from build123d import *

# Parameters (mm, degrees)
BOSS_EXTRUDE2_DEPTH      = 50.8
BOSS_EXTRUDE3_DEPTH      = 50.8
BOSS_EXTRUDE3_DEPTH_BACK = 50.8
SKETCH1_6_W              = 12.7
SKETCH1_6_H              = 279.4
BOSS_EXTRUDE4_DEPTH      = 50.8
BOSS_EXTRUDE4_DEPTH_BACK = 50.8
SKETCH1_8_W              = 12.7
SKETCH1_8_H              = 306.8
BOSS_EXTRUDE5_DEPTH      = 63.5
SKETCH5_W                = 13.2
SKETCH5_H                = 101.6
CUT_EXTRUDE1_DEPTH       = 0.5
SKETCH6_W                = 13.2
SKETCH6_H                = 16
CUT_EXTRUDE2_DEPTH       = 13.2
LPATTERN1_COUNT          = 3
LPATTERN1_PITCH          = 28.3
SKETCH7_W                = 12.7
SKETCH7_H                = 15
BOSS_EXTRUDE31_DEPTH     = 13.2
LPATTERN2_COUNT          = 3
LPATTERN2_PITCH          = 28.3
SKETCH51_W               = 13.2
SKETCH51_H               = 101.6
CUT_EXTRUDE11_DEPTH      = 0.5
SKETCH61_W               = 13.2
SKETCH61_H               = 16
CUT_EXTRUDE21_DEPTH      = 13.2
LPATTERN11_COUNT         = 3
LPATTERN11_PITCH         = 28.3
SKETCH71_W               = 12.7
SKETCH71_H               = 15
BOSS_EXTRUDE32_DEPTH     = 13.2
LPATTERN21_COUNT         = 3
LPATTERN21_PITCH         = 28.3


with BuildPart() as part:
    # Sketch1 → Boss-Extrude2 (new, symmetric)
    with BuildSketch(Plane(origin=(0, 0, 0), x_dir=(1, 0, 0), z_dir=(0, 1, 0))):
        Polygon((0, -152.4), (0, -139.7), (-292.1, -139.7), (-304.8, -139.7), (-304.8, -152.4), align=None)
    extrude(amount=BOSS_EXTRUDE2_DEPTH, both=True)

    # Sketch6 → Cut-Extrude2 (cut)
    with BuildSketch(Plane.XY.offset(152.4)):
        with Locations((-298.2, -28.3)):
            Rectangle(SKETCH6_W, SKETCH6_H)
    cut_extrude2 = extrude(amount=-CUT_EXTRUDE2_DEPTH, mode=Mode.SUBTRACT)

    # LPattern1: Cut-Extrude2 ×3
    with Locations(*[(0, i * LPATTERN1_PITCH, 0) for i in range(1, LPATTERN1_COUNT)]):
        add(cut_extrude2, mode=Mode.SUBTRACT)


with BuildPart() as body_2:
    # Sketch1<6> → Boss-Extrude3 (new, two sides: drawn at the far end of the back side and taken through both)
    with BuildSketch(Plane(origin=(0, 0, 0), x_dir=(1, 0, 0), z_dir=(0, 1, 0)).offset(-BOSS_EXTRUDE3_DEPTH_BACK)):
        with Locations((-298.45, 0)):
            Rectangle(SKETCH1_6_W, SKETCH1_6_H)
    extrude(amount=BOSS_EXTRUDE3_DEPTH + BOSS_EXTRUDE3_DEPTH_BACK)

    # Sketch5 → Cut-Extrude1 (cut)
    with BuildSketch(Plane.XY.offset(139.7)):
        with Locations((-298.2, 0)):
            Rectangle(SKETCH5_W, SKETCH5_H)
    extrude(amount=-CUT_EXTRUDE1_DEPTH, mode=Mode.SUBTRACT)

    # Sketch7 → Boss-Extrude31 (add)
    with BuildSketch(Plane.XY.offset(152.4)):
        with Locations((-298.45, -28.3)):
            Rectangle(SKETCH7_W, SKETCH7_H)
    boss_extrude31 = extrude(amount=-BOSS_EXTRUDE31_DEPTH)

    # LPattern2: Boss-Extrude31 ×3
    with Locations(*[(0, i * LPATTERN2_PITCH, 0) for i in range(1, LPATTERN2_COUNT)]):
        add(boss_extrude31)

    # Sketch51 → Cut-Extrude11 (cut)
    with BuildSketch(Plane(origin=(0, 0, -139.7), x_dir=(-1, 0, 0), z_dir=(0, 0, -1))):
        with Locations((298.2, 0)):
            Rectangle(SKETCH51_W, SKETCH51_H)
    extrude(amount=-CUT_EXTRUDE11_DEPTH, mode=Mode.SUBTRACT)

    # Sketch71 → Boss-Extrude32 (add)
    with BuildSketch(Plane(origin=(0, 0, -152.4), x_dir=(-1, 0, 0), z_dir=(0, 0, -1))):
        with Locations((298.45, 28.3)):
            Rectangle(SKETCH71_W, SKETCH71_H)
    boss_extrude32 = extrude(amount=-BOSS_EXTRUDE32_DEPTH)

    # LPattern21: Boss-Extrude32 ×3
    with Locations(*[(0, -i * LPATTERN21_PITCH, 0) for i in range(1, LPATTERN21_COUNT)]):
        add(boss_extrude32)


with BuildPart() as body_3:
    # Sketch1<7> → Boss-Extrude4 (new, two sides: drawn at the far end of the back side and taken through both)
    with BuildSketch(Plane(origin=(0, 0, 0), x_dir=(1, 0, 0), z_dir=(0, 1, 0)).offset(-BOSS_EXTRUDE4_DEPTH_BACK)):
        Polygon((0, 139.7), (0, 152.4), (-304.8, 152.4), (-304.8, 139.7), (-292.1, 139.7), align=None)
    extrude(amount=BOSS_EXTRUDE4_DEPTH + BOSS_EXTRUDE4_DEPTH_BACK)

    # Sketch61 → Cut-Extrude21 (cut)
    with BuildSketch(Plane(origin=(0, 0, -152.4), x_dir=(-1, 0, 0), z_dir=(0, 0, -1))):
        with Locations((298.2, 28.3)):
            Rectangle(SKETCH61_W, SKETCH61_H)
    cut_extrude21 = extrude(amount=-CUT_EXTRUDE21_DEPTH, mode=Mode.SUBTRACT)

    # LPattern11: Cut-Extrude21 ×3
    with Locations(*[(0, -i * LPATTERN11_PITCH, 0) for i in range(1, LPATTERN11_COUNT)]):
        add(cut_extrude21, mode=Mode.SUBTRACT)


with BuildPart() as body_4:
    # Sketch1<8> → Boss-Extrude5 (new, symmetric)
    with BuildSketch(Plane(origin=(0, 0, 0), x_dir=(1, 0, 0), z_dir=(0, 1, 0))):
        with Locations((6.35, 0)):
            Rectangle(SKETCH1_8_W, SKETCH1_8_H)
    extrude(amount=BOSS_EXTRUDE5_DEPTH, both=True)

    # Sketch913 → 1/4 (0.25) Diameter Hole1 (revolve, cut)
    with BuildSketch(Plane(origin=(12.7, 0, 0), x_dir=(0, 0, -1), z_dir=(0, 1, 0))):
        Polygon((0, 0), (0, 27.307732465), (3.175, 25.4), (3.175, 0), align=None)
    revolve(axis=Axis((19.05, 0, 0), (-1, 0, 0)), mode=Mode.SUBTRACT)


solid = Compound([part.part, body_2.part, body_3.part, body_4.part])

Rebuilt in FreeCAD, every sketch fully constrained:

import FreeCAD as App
import Part
import Sketcher
Q = App.Units.Quantity


def add_polygon(sketch, points):
    """Adds a closed chain of lines whose ends are joined by coincident constraints."""
    first, n = sketch.GeometryCount, len(points)
    for a, b in zip(points, points[1:] + points[:1]):
        sketch.addGeometry(Part.LineSegment(App.Vector(*a, 0), App.Vector(*b, 0)), False)
    for i in range(n):
        sketch.addConstraint(Sketcher.Constraint("Coincident", first + i, 2, first + (i + 1) % n, 1))

doc = App.newDocument("Part")
body = doc.addObject("PartDesign::Body", "Body")

# Sketch on XZ plane
sketch1 = body.newObject("Sketcher::SketchObject", "Sketch")
sketch1.AttachmentSupport = (doc.getObject("XZ_Plane"), [""])
sketch1.MapMode = "FlatFace"
add_polygon(sketch1, [(0, 152.4), (0, 139.7), (-304.8, 139.7), (-304.8, 152.4)])  # lines 0-3
sketch1.addConstraint([
    Sketcher.Constraint("Vertical", 0),
    Sketcher.Constraint("Horizontal", 1),
    Sketcher.Constraint("Vertical", 2),
    Sketcher.Constraint("Horizontal", 3),
    Sketcher.Constraint("PointOnObject", 0, 2, -2),
    Sketcher.Constraint("DistanceX", 1, 2, 1, 1, Q("12 in")),
    Sketcher.Constraint("DistanceY", 0, 2, 0, 1, Q("0.5 in")),
    Sketcher.Constraint("DistanceY", -1, 1, 2, 2, Q("6 in")),
])
pad1 = body.newObject("PartDesign::Pad", "Pad")
pad1.Profile = sketch1
pad1.Length = Q("4 in")
pad1.Midplane = True

# Sketch on XY plane
sketch2 = body.newObject("Sketcher::SketchObject", "Sketch001")
sketch2.AttachmentSupport = (doc.getObject("XY_Plane"), [""])
sketch2.MapMode = "FlatFace"
sketch2.AttachmentOffset = App.Placement(App.Vector(0, 0, 6 * 25.4), App.Rotation())
add_polygon(sketch2, [(-304.8, -20.3), (-304.8, -36.3), (-291.6, -36.3), (-291.6, -20.3)])  # lines 0-3
sketch2.addConstraint([
    Sketcher.Constraint("Vertical", 0),
    Sketcher.Constraint("Horizontal", 1),
    Sketcher.Constraint("Vertical", 2),
    Sketcher.Constraint("Horizontal", 3),
    Sketcher.Constraint("DistanceX", 0, 2, -1, 1, Q("12 in")),
    Sketcher.Constraint("DistanceX", 1, 1, 1, 2, 13.2),
    Sketcher.Constraint("DistanceY", 0, 2, 0, 1, 16.0),
    Sketcher.Constraint("DistanceY", 0, 2, -1, 1, 36.3),
])
pocket1 = body.newObject("PartDesign::Pocket", "Pocket")
pocket1.Profile = sketch2
pocket1.Length = 13.2
doc.recompute()

linearpattern = body.newObject("PartDesign::LinearPattern", "LinearPattern")
linearpattern.Originals = [pocket1]
linearpattern.Direction = (doc.getObject("Y_Axis"), [""])
linearpattern.Mode = "offset"
linearpattern.Offset = 28.3
linearpattern.Occurrences = 3
body.Tip = linearpattern
body2 = doc.addObject("PartDesign::Body", "Body001")

# Sketch on XZ plane
sketch3 = body2.newObject("Sketcher::SketchObject", "Sketch002")
sketch3.AttachmentSupport = (doc.getObject("XZ_Plane001"), [""])
sketch3.MapMode = "FlatFace"
add_polygon(sketch3, [(-304.8, -139.7), (-304.8, 139.7), (-292.1, 139.7), (-292.1, -139.7)])  # lines 0-3
sketch3.addConstraint([
    Sketcher.Constraint("Vertical", 0),
    Sketcher.Constraint("Horizontal", 1),
    Sketcher.Constraint("Vertical", 2),
    Sketcher.Constraint("Horizontal", 3),
    Sketcher.Constraint("DistanceY", 0, 1, 0, 2, Q("11 in")),
    Sketcher.Constraint("DistanceX", 1, 1, 1, 2, Q("0.5 in")),
    Sketcher.Constraint("DistanceX", 0, 2, -1, 1, Q("12 in")),
    Sketcher.Constraint("DistanceY", -1, 1, 0, 2, Q("5.5 in")),
])
pad2 = body2.newObject("PartDesign::Pad", "Pad001")
pad2.Profile = sketch3
pad2.Type = "TwoLengths"
pad2.Length = Q("2 in")
pad2.Length2 = Q("2 in")
pad2.Reversed = True

# Sketch on XY plane
sketch4 = body2.newObject("Sketcher::SketchObject", "Sketch003")
sketch4.AttachmentSupport = (doc.getObject("XY_Plane001"), [""])
sketch4.MapMode = "FlatFace"
sketch4.AttachmentOffset = App.Placement(App.Vector(0, 0, 5.5 * 25.4), App.Rotation())
add_polygon(sketch4, [(-304.8, 50.8), (-304.8, -50.8), (-291.6, -50.8), (-291.6, 50.8)])  # lines 0-3
sketch4.addConstraint([
    Sketcher.Constraint("Vertical", 0),
    Sketcher.Constraint("Horizontal", 1),
    Sketcher.Constraint("Vertical", 2),
    Sketcher.Constraint("Horizontal", 3),
    Sketcher.Constraint("DistanceY", 0, 2, 0, 1, Q("4 in")),
    Sketcher.Constraint("DistanceX", 0, 2, -1, 1, Q("12 in")),
    Sketcher.Constraint("DistanceY", 0, 2, -1, 1, Q("2 in")),
    Sketcher.Constraint("DistanceX", 1, 1, 1, 2, 13.2),
])
pocket2 = body2.newObject("PartDesign::Pocket", "Pocket001")
pocket2.Profile = sketch4
pocket2.Length = 0.5

# Sketch on XY plane
sketch5 = body2.newObject("Sketcher::SketchObject", "Sketch004")
sketch5.AttachmentSupport = (doc.getObject("XY_Plane001"), [""])
sketch5.MapMode = "FlatFace"
sketch5.AttachmentOffset = App.Placement(App.Vector(0, 0, 6 * 25.4), App.Rotation())
add_polygon(sketch5, [(-304.8, -20.8), (-304.8, -35.8), (-292.1, -35.8), (-292.1, -20.8)])  # lines 0-3
sketch5.addConstraint([
    Sketcher.Constraint("Vertical", 0),
    Sketcher.Constraint("Horizontal", 1),
    Sketcher.Constraint("Vertical", 2),
    Sketcher.Constraint("Horizontal", 3),
    Sketcher.Constraint("DistanceX", 1, 1, 1, 2, Q("0.5 in")),
    Sketcher.Constraint("DistanceX", 0, 2, -1, 1, Q("12 in")),
    Sketcher.Constraint("DistanceY", 0, 2, 0, 1, 15.0),
    Sketcher.Constraint("DistanceY", 0, 2, -1, 1, 35.8),
])
pad3 = body2.newObject("PartDesign::Pad", "Pad002")
pad3.Profile = sketch5
pad3.Length = 13.2
pad3.Reversed = True
doc.recompute()

linearpattern2 = body2.newObject("PartDesign::LinearPattern", "LinearPattern001")
linearpattern2.Originals = [pad3]
linearpattern2.Direction = (doc.getObject("Y_Axis001"), [""])
linearpattern2.Mode = "offset"
linearpattern2.Offset = 28.3
linearpattern2.Occurrences = 3
body2.Tip = linearpattern2

# Sketch on XY plane
sketch6 = body2.newObject("Sketcher::SketchObject", "Sketch005")
sketch6.AttachmentSupport = (doc.getObject("XY_Plane001"), [""])
sketch6.MapMode = "FlatFace"
sketch6.AttachmentOffset = App.Placement(App.Vector(0, 0, -5.5 * 25.4), App.Rotation())
add_polygon(sketch6, [(-291.6, 50.8), (-291.6, -50.8), (-304.8, -50.8), (-304.8, 50.8)])  # lines 0-3
sketch6.addConstraint([
    Sketcher.Constraint("Vertical", 0),
    Sketcher.Constraint("Horizontal", 1),
    Sketcher.Constraint("Vertical", 2),
    Sketcher.Constraint("Horizontal", 3),
    Sketcher.Constraint("DistanceY", 0, 2, 0, 1, Q("4 in")),
    Sketcher.Constraint("DistanceY", 0, 2, -1, 1, Q("2 in")),
    Sketcher.Constraint("DistanceX", 1, 2, -1, 1, Q("12 in")),
    Sketcher.Constraint("DistanceX", 1, 2, 1, 1, 13.2),
])
pocket3 = body2.newObject("PartDesign::Pocket", "Pocket002")
pocket3.Profile = sketch6
pocket3.Length = 0.5
pocket3.Reversed = True

# Sketch on XY plane
sketch7 = body2.newObject("Sketcher::SketchObject", "Sketch006")
sketch7.AttachmentSupport = (doc.getObject("XY_Plane001"), [""])
sketch7.MapMode = "FlatFace"
sketch7.AttachmentOffset = App.Placement(App.Vector(0, 0, -6 * 25.4), App.Rotation())
add_polygon(sketch7, [(-292.1, 35.8), (-292.1, 20.8), (-304.8, 20.8), (-304.8, 35.8)])  # lines 0-3
sketch7.addConstraint([
    Sketcher.Constraint("Vertical", 0),
    Sketcher.Constraint("Horizontal", 1),
    Sketcher.Constraint("Vertical", 2),
    Sketcher.Constraint("Horizontal", 3),
    Sketcher.Constraint("DistanceX", 1, 2, 1, 1, Q("0.5 in")),
    Sketcher.Constraint("DistanceX", 1, 2, -1, 1, Q("12 in")),
    Sketcher.Constraint("DistanceY", 0, 2, 0, 1, 15.0),
    Sketcher.Constraint("DistanceY", -1, 1, 0, 2, 20.8),
])
pad4 = body2.newObject("PartDesign::Pad", "Pad003")
pad4.Profile = sketch7
pad4.Length = 13.2
doc.recompute()

linearpattern3 = body2.newObject("PartDesign::LinearPattern", "LinearPattern002")
linearpattern3.Originals = [pad4]
linearpattern3.Direction = (doc.getObject("Y_Axis001"), [""])
linearpattern3.Mode = "offset"
linearpattern3.Offset = 28.3
linearpattern3.Occurrences = 3
linearpattern3.Reversed = True
body2.Tip = linearpattern3
body3 = doc.addObject("PartDesign::Body", "Body002")

# Sketch on XZ plane
sketch8 = body3.newObject("Sketcher::SketchObject", "Sketch007")
sketch8.AttachmentSupport = (doc.getObject("XZ_Plane002"), [""])
sketch8.MapMode = "FlatFace"
add_polygon(sketch8, [(0, -139.7), (0, -152.4), (-304.8, -152.4), (-304.8, -139.7)])  # lines 0-3
sketch8.addConstraint([
    Sketcher.Constraint("Vertical", 0),
    Sketcher.Constraint("Horizontal", 1),
    Sketcher.Constraint("Vertical", 2),
    Sketcher.Constraint("Horizontal", 3),
    Sketcher.Constraint("PointOnObject", 0, 2, -2),
    Sketcher.Constraint("DistanceX", 1, 2, 1, 1, Q("12 in")),
    Sketcher.Constraint("DistanceY", 0, 2, 0, 1, Q("0.5 in")),
    Sketcher.Constraint("DistanceY", 0, 2, -1, 1, Q("6 in")),
])
pad5 = body3.newObject("PartDesign::Pad", "Pad004")
pad5.Profile = sketch8
pad5.Type = "TwoLengths"
pad5.Length = Q("2 in")
pad5.Length2 = Q("2 in")
pad5.Reversed = True

# Sketch on XY plane
sketch9 = body3.newObject("Sketcher::SketchObject", "Sketch008")
sketch9.AttachmentSupport = (doc.getObject("XY_Plane002"), [""])
sketch9.MapMode = "FlatFace"
sketch9.AttachmentOffset = App.Placement(App.Vector(0, 0, -6 * 25.4), App.Rotation())
add_polygon(sketch9, [(-291.6, 36.3), (-291.6, 20.3), (-304.8, 20.3), (-304.8, 36.3)])  # lines 0-3
sketch9.addConstraint([
    Sketcher.Constraint("Vertical", 0),
    Sketcher.Constraint("Horizontal", 1),
    Sketcher.Constraint("Vertical", 2),
    Sketcher.Constraint("Horizontal", 3),
    Sketcher.Constraint("DistanceX", 1, 2, -1, 1, Q("12 in")),
    Sketcher.Constraint("DistanceX", 1, 2, 1, 1, 13.2),
    Sketcher.Constraint("DistanceY", 0, 2, 0, 1, 16.0),
    Sketcher.Constraint("DistanceY", -1, 1, 0, 2, 20.3),
])
pocket4 = body3.newObject("PartDesign::Pocket", "Pocket003")
pocket4.Profile = sketch9
pocket4.Length = 13.2
pocket4.Reversed = True
doc.recompute()

linearpattern4 = body3.newObject("PartDesign::LinearPattern", "LinearPattern003")
linearpattern4.Originals = [pocket4]
linearpattern4.Direction = (doc.getObject("Y_Axis002"), [""])
linearpattern4.Mode = "offset"
linearpattern4.Offset = 28.3
linearpattern4.Occurrences = 3
linearpattern4.Reversed = True
body3.Tip = linearpattern4
body4 = doc.addObject("PartDesign::Body", "Body003")

# Sketch on XZ plane
sketch10 = body4.newObject("Sketcher::SketchObject", "Sketch009")
sketch10.AttachmentSupport = (doc.getObject("XZ_Plane003"), [""])
sketch10.MapMode = "FlatFace"
add_polygon(sketch10, [(0, -153.4), (0, 153.4), (12.7, 153.4), (12.7, -153.4)])  # lines 0-3
sketch10.addConstraint([
    Sketcher.Constraint("Vertical", 0),
    Sketcher.Constraint("Horizontal", 1),
    Sketcher.Constraint("Vertical", 2),
    Sketcher.Constraint("Horizontal", 3),
    Sketcher.Constraint("Symmetric", 0, 2, 3, 2, -1, 1),
    Sketcher.Constraint("DistanceX", 1, 1, 1, 2, Q("0.5 in")),
    Sketcher.Constraint("DistanceY", 0, 1, 0, 2, 306.8),
])
pad6 = body4.newObject("PartDesign::Pad", "Pad005")
pad6.Profile = sketch10
pad6.Length = Q("5 in")
pad6.Midplane = True

# Sketch on XZ plane
sketch11 = body4.newObject("Sketcher::SketchObject", "Sketch010")
sketch11.AttachmentSupport = (doc.getObject("XZ_Plane003"), [""])
sketch11.MapMode = "FlatFace"
add_polygon(sketch11, [(-14.607732, 0), (12.7, 0), (12.7, -3.175), (-12.7, -3.175)])  # lines 0-3
sketch11.addConstraint([
    Sketcher.Constraint("Horizontal", 0),
    Sketcher.Constraint("Vertical", 1),
    Sketcher.Constraint("Horizontal", 2),
    Sketcher.Constraint("PointOnObject", 0, 2, -1),
    Sketcher.Constraint("DistanceX", 2, 2, 2, 1, Q("1 in")),
    Sketcher.Constraint("Angle", 3, Q("121 deg")),
    Sketcher.Constraint("DistanceX", -1, 1, 0, 2, Q("0.5 in")),
    Sketcher.Constraint("DistanceY", 1, 2, 1, 1, Q("0.125 in")),
])
groove = body4.newObject("PartDesign::Groove", "Groove")
groove.Profile = sketch11
groove.ReferenceAxis = (sketch11, ["H_Axis"])
groove.Angle = 360

doc.recompute()
